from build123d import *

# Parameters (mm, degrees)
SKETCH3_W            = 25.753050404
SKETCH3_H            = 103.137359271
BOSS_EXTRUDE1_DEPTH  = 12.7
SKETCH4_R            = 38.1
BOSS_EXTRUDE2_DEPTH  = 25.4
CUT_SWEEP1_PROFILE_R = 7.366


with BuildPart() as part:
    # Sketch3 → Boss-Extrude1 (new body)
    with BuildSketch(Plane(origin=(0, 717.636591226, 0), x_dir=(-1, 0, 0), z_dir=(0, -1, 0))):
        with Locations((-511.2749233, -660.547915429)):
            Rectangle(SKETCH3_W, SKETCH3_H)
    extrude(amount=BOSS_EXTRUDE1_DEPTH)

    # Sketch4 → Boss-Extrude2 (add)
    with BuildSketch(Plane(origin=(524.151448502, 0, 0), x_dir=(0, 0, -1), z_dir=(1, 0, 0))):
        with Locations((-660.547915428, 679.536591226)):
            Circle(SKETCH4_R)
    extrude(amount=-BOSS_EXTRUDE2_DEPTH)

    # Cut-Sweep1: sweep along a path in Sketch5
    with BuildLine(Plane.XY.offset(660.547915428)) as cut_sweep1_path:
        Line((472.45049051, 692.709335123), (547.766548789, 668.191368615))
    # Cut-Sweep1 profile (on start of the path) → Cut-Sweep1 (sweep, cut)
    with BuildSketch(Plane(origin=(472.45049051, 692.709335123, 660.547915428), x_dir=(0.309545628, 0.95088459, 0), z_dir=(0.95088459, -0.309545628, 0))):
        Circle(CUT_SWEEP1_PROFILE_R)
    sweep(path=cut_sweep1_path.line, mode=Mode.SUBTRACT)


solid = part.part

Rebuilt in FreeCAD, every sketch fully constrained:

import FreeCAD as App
import Part
import Sketcher
Q = App.Units.Quantity


def add_polygon(sketch, points):
    """Adds a closed chain of lines whose ends are joined by coincident constraints."""
    first, n = sketch.GeometryCount, len(points)
    for a, b in zip(points, points[1:] + points[:1]):
        sketch.addGeometry(Part.LineSegment(App.Vector(*a, 0), App.Vector(*b, 0)), False)
    for i in range(n):
        sketch.addConstraint(Sketcher.Constraint("Coincident", first + i, 2, first + (i + 1) % n, 1))

doc = App.newDocument("Part")
body = doc.addObject("PartDesign::Body", "Body")

# Sketch on XZ plane
sketch1 = body.newObject("Sketcher::SketchObject", "Sketch")
sketch1.AttachmentSupport = (doc.getObject("XZ_Plane"), [""])
sketch1.MapMode = "FlatFace"
sketch1.AttachmentOffset = App.Placement(App.Vector(0, 0, -717.636591), App.Rotation())
add_polygon(sketch1, [(524, 609), (524, 712), (498, 712), (498, 609)])  # lines 0-3
sketch1.addConstraint([
    Sketcher.Constraint("Vertical", 0),
    Sketcher.Constraint("Horizontal", 1),
    Sketcher.Constraint("Vertical", 2),
    Sketcher.Constraint("Horizontal", 3),
    Sketcher.Constraint("DistanceX", 1, 2, 1, 1, 25.75305),
    Sketcher.Constraint("DistanceY", 0, 1, 0, 2, 103.137359),
    Sketcher.Constraint("DistanceX", -1, 1, 1, 2, 498.398398),
    Sketcher.Constraint("DistanceY", -1, 1, 0, 2, 712.116595),
])
pad1 = body.newObject("PartDesign::Pad", "Pad")
pad1.Profile = sketch1
pad1.Length = Q("0.5 in")

# Sketch on YZ plane
sketch2 = body.newObject("Sketcher::SketchObject", "Sketch001")
sketch2.AttachmentSupport = (doc.getObject("YZ_Plane"), [""])
sketch2.MapMode = "FlatFace"
sketch2.AttachmentOffset = App.Placement(App.Vector(0, 0, 524.151449), App.Rotation())
sketch2.addGeometry(Part.Circle(App.Vector(680, 661, 0), App.Vector(0, 0, 1), 38), False)
sketch2.addConstraint([
    Sketcher.Constraint("Diameter", 0, Q("3 in")),
    Sketcher.Constraint("DistanceX", -1, 1, 0, 3, 679.536591),
    Sketcher.Constraint("DistanceY", -1, 1, 0, 3, 660.547915),
])
pad2 = body.newObject("PartDesign::Pad", "Pad001")
pad2.Profile = sketch2
pad2.Length = Q("1 in")
pad2.Reversed = True

# Sketch on an angled plane
sketch3 = body.newObject("Sketcher::SketchObject", "Sketch002")
sketch3.Placement = App.Placement(App.Vector(472.450491, 692.709335, 660.547915), App.Rotation(App.Vector(0.309545628, 0.95088459, 0), App.Vector(0, 0, 0.999999999), App.Vector(0.95088459, -0.309545628, 0), "ZXY"))
sketch3.addGeometry(Part.Circle(App.Vector(0, 0, 0), App.Vector(0, 0, 1), 7), False)
sketch3.addConstraint([
    Sketcher.Constraint("Coincident", 0, 3, -1, 1),
    Sketcher.Constraint("Diameter", 0, Q("0.58 in")),
])

# Sketch on an angled plane
sketch4 = body.newObject("Sketcher::SketchObject", "Sketch003")
sketch4.Placement = App.Placement(App.Vector(249.163062, 765.39707, 0), App.Rotation(App.Vector(0.95088459, -0.309545628, 0), App.Vector(0, 0, 0.999999999), App.Vector(-0.309545628, -0.95088459, 0), "ZXY"))
sketch4.addGeometry(Part.LineSegment(App.Vector(235, 661, 0), App.Vector(314, 661, 0)), False)
sketch4.addConstraint([
    Sketcher.Constraint("Horizontal", 0),
    Sketcher.Constraint("DistanceX", 0, 1, 0, 2, 79.206309),
    Sketcher.Constraint("DistanceX", -1, 1, 0, 1, 234.820745),
    Sketcher.Constraint("DistanceY", -1, 1, 0, 1, 660.547915),
])
doc.recompute()

subtractivepipe = body.newObject("PartDesign::SubtractivePipe", "SubtractivePipe")
subtractivepipe.Profile = sketch3
subtractivepipe.Spine = (sketch4, ["Edge1"])

doc.recompute()
